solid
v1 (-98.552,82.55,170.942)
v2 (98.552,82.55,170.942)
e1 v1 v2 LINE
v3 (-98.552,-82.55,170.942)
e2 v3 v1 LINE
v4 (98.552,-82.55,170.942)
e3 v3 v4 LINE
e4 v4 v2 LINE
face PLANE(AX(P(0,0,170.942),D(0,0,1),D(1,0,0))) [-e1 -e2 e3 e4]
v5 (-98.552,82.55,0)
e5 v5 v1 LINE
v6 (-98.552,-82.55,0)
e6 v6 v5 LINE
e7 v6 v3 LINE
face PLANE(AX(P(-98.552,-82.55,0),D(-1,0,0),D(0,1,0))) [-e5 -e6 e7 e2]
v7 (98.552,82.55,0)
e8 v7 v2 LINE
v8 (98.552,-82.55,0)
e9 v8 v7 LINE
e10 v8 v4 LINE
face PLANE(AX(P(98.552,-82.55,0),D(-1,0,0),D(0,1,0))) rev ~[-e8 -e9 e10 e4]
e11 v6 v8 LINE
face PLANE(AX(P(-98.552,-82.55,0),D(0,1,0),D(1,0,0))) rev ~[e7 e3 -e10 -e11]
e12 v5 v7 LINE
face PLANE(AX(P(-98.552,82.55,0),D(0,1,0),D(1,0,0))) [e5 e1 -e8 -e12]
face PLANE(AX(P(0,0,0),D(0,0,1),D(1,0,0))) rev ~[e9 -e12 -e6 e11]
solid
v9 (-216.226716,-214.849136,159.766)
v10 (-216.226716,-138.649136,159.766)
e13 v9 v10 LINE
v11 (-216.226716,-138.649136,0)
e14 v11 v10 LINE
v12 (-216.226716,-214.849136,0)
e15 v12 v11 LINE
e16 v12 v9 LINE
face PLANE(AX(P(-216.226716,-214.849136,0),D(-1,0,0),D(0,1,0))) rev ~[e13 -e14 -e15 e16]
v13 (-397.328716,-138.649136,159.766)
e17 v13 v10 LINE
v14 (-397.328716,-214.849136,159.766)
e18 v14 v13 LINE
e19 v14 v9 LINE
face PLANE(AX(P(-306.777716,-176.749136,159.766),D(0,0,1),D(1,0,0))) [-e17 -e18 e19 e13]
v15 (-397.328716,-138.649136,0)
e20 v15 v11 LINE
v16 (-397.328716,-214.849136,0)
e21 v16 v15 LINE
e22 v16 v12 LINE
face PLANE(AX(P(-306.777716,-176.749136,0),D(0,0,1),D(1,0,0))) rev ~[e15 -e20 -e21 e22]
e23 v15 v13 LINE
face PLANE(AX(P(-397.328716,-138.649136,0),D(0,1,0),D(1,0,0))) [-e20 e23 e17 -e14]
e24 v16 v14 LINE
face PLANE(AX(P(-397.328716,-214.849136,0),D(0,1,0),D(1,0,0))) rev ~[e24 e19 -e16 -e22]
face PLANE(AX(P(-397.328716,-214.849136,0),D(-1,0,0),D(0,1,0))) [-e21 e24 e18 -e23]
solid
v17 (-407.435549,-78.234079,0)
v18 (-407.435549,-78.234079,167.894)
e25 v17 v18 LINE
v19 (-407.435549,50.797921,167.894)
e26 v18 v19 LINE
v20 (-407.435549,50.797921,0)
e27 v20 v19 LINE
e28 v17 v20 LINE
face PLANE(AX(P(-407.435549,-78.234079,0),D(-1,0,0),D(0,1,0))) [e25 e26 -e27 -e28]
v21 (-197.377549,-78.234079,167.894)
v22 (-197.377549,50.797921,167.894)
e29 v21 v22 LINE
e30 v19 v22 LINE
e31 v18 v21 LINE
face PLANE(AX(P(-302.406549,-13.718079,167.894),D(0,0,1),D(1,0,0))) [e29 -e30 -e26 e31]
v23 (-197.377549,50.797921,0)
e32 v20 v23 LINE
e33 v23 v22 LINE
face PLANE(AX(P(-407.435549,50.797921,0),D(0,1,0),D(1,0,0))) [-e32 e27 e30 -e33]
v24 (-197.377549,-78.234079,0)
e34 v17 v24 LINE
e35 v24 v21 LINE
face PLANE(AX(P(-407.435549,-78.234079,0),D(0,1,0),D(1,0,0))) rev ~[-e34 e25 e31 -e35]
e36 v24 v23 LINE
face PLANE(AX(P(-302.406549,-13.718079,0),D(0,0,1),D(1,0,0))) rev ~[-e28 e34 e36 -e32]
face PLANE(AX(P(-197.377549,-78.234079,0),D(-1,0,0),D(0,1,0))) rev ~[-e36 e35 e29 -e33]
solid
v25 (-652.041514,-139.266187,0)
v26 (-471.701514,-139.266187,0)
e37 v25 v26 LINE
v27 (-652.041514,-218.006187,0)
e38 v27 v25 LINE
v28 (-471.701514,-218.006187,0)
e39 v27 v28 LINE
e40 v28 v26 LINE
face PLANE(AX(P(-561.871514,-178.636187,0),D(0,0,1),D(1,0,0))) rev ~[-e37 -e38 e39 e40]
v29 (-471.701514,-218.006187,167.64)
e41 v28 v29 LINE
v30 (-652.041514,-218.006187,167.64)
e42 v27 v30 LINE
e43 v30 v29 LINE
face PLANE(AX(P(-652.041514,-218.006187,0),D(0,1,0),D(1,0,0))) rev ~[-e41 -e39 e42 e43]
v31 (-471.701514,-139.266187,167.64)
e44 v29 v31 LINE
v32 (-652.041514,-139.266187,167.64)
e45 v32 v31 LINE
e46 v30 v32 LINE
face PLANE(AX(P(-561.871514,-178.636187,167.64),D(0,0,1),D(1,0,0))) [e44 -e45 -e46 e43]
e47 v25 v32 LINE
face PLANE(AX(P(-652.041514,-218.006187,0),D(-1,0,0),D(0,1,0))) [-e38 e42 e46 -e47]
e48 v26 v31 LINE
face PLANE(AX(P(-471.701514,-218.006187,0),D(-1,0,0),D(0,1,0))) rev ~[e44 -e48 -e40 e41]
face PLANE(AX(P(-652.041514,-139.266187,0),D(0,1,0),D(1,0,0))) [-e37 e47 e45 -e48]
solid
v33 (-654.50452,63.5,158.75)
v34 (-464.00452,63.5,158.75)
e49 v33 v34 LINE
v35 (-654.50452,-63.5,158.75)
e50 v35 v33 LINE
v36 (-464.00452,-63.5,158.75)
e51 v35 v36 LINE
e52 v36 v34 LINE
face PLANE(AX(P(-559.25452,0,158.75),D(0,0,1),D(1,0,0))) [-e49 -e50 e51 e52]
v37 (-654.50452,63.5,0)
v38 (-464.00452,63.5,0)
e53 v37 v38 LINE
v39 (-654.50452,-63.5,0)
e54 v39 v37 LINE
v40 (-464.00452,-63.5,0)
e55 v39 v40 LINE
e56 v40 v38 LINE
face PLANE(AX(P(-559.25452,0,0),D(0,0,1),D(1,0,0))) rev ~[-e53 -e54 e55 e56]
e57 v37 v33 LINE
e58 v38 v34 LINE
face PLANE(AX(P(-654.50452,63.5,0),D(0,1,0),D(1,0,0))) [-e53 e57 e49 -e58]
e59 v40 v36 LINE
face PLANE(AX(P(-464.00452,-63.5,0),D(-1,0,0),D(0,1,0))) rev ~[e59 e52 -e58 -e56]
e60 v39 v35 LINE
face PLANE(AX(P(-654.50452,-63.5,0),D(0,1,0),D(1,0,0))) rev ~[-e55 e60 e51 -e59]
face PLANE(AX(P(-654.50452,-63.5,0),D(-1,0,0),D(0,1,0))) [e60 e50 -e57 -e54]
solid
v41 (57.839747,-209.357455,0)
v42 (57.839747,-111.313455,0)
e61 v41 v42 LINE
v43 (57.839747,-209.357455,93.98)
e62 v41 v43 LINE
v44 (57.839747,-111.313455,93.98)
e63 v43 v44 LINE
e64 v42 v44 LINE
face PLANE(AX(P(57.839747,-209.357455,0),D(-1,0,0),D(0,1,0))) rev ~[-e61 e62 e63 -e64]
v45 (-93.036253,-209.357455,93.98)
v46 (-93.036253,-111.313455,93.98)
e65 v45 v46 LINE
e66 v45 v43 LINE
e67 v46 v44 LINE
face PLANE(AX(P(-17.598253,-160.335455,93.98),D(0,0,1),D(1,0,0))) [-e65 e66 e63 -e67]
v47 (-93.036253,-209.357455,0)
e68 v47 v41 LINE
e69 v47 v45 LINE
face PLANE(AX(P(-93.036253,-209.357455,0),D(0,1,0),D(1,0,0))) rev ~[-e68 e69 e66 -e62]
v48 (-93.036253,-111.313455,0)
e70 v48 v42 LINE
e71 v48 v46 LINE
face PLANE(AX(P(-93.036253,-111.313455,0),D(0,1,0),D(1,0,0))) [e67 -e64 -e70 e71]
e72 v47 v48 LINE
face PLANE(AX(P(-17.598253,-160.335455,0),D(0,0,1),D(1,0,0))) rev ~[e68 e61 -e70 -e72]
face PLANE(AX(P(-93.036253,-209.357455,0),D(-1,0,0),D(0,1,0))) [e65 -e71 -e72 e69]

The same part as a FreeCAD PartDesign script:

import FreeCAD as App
import Part
import Sketcher

V = App.Vector
Q = App.Units.Quantity


def add_polygon(sketch, points):
    """Adds a closed chain of lines whose ends are joined by coincident constraints."""
    first, n = sketch.GeometryCount, len(points)
    for a, b in zip(points, points[1:] + points[:1]):
        sketch.addGeometry(Part.LineSegment(App.Vector(*a, 0), App.Vector(*b, 0)), False)
    for i in range(n):
        sketch.addConstraint(Sketcher.Constraint("Coincident", first + i, 2, first + (i + 1) % n, 1))

doc = App.newDocument("Part")
body = doc.addObject("PartDesign::Body", "Body")

# Sketch on XY plane
sketch1 = body.newObject("Sketcher::SketchObject", "Sketch")
sketch1.AttachmentSupport = (doc.getObject("XY_Plane"), [""])
sketch1.MapMode = "FlatFace"
add_polygon(sketch1, [(-98.552, 82.55), (-98.552, -82.55), (98.552, -82.55), (98.552, 82.55)])  # lines 0-3
sketch1.addConstraint([
    Sketcher.Constraint("Vertical", 0),
    Sketcher.Constraint("Horizontal", 1),
    Sketcher.Constraint("Vertical", 2),
    Sketcher.Constraint("Horizontal", 3),
    Sketcher.Constraint("Symmetric", 0, 2, 2, 2, -1, 1),
    Sketcher.Constraint("DistanceY", 0, 2, 0, 1, Q("6.5 in")),
    Sketcher.Constraint("DistanceX", 1, 1, 1, 2, Q("7.76 in")),
])
pad1 = body.newObject("PartDesign::Pad", "Pad")
pad1.Profile = sketch1
pad1.Length = Q("6.73 in")
body2 = doc.addObject("PartDesign::Body", "Body001")

# Sketch on XY plane
sketch2 = body2.newObject("Sketcher::SketchObject", "Sketch001")
sketch2.AttachmentSupport = (doc.getObject("XY_Plane001"), [""])
sketch2.MapMode = "FlatFace"
add_polygon(sketch2, [(-407.435549, 50.797921), (-407.435549, -78.234079), (-197.377549, -78.234079), (-197.377549, 50.797921)])  # lines 0-3
sketch2.addConstraint([
    Sketcher.Constraint("Vertical", 0),
    Sketcher.Constraint("Horizontal", 1),
    Sketcher.Constraint("Vertical", 2),
    Sketcher.Constraint("Horizontal", 3),
    Sketcher.Constraint("DistanceX", 1, 1, 1, 2, Q("8.27 in")),
    Sketcher.Constraint("DistanceY", 0, 2, 0, 1, Q("5.08 in")),
    Sketcher.Constraint("DistanceX", 0, 2, -1, 1, 407.435549),
    Sketcher.Constraint("DistanceY", 0, 2, -1, 1, 78.234079),
])
pad2 = body2.newObject("PartDesign::Pad", "Pad001")
pad2.Profile = sketch2
pad2.Length = Q("6.61 in")
body3 = doc.addObject("PartDesign::Body", "Body002")

# Sketch on XY plane
sketch3 = body3.newObject("Sketcher::SketchObject", "Sketch002")
sketch3.AttachmentSupport = (doc.getObject("XY_Plane002"), [""])
sketch3.MapMode = "FlatFace"
add_polygon(sketch3, [(-397.328716, -138.649136), (-397.328716, -214.849136), (-216.226716, -214.849136), (-216.226716, -138.649136)])  # lines 0-3
sketch3.addConstraint([
    Sketcher.Constraint("Vertical", 0),
    Sketcher.Constraint("Horizontal", 1),
    Sketcher.Constraint("Vertical", 2),
    Sketcher.Constraint("Horizontal", 3),
    Sketcher.Constraint("DistanceY", 0, 2, 0, 1, Q("3 in")),
    Sketcher.Constraint("DistanceX", 1, 1, 1, 2, Q("7.13 in")),
    Sketcher.Constraint("DistanceX", 0, 2, -1, 1, 397.328716),
    Sketcher.Constraint("DistanceY", 0, 2, -1, 1, 214.849136),
])
pad3 = body3.newObject("PartDesign::Pad", "Pad002")
pad3.Profile = sketch3
pad3.Length = Q("6.29 in")
body4 = doc.addObject("PartDesign::Body", "Body003")

# Sketch on XY plane
sketch4 = body4.newObject("Sketcher::SketchObject", "Sketch003")
sketch4.AttachmentSupport = (doc.getObject("XY_Plane003"), [""])
sketch4.MapMode = "FlatFace"
add_polygon(sketch4, [(-93.036253, -111.313455), (-93.036253, -209.357455), (57.839747, -209.357455), (57.839747, -111.313455)])  # lines 0-3
sketch4.addConstraint([
    Sketcher.Constraint("Vertical", 0),
    Sketcher.Constraint("Horizontal", 1),
    Sketcher.Constraint("Vertical", 2),
    Sketcher.Constraint("Horizontal", 3),
    Sketcher.Constraint("DistanceX", 1, 1, 1, 2, Q("5.94 in")),
    Sketcher.Constraint("DistanceY", 0, 2, 0, 1, Q("3.86 in")),
    Sketcher.Constraint("DistanceX", 0, 2, -1, 1, 93.036253),
    Sketcher.Constraint("DistanceY", 0, 2, -1, 1, 209.357455),
])
pad4 = body4.newObject("PartDesign::Pad", "Pad003")
pad4.Profile = sketch4
pad4.Length = Q("3.7 in")
body5 = doc.addObject("PartDesign::Body", "Body004")

# Sketch on XY plane
sketch5 = body5.newObject("Sketcher::SketchObject", "Sketch004")
sketch5.AttachmentSupport = (doc.getObject("XY_Plane004"), [""])
sketch5.MapMode = "FlatFace"
add_polygon(sketch5, [(-654.50452, 63.5), (-654.50452, -63.5), (-464.00452, -63.5), (-464.00452, 63.5)])  # lines 0-3
sketch5.addConstraint([
    Sketcher.Constraint("Vertical", 0),
    Sketcher.Constraint("Horizontal", 1),
    Sketcher.Constraint("Vertical", 2),
    Sketcher.Constraint("Horizontal", 3),
    Sketcher.Constraint("DistanceY", 0, 2, 0, 1, Q("5 in")),
    Sketcher.Constraint("DistanceX", 1, 1, 1, 2, Q("7.5 in")),
    Sketcher.Constraint("DistanceY", 0, 2, -1, 1, Q("2.5 in")),
    Sketcher.Constraint("DistanceX", 0, 2, -1, 1, 654.50452),
])
pad5 = body5.newObject("PartDesign::Pad", "Pad004")
pad5.Profile = sketch5
pad5.Length = Q("6.25 in")
body6 = doc.addObject("PartDesign::Body", "Body005")

# Sketch on XY plane
sketch6 = body6.newObject("Sketcher::SketchObject", "Sketch005")
sketch6.AttachmentSupport = (doc.getObject("XY_Plane005"), [""])
sketch6.MapMode = "FlatFace"
add_polygon(sketch6, [(-652.041514, -139.266187), (-652.041514, -218.006187), (-471.701514, -218.006187), (-471.701514, -139.266187)])  # lines 0-3
sketch6.addConstraint([
    Sketcher.Constraint("Vertical", 0),
    Sketcher.Constraint("Horizontal", 1),
    Sketcher.Constraint("Vertical", 2),
    Sketcher.Constraint("Horizontal", 3),
    Sketcher.Constraint("DistanceX", 1, 1, 1, 2, Q("7.1 in")),
    Sketcher.Constraint("DistanceY", 0, 2, 0, 1, Q("3.1 in")),
    Sketcher.Constraint("DistanceX", 0, 2, -1, 1, 652.041514),
    Sketcher.Constraint("DistanceY", 0, 2, -1, 1, 218.006187),
])
pad6 = body6.newObject("PartDesign::Pad", "Pad005")
pad6.Profile = sketch6
pad6.Length = Q("6.6 in")

doc.recompute()
